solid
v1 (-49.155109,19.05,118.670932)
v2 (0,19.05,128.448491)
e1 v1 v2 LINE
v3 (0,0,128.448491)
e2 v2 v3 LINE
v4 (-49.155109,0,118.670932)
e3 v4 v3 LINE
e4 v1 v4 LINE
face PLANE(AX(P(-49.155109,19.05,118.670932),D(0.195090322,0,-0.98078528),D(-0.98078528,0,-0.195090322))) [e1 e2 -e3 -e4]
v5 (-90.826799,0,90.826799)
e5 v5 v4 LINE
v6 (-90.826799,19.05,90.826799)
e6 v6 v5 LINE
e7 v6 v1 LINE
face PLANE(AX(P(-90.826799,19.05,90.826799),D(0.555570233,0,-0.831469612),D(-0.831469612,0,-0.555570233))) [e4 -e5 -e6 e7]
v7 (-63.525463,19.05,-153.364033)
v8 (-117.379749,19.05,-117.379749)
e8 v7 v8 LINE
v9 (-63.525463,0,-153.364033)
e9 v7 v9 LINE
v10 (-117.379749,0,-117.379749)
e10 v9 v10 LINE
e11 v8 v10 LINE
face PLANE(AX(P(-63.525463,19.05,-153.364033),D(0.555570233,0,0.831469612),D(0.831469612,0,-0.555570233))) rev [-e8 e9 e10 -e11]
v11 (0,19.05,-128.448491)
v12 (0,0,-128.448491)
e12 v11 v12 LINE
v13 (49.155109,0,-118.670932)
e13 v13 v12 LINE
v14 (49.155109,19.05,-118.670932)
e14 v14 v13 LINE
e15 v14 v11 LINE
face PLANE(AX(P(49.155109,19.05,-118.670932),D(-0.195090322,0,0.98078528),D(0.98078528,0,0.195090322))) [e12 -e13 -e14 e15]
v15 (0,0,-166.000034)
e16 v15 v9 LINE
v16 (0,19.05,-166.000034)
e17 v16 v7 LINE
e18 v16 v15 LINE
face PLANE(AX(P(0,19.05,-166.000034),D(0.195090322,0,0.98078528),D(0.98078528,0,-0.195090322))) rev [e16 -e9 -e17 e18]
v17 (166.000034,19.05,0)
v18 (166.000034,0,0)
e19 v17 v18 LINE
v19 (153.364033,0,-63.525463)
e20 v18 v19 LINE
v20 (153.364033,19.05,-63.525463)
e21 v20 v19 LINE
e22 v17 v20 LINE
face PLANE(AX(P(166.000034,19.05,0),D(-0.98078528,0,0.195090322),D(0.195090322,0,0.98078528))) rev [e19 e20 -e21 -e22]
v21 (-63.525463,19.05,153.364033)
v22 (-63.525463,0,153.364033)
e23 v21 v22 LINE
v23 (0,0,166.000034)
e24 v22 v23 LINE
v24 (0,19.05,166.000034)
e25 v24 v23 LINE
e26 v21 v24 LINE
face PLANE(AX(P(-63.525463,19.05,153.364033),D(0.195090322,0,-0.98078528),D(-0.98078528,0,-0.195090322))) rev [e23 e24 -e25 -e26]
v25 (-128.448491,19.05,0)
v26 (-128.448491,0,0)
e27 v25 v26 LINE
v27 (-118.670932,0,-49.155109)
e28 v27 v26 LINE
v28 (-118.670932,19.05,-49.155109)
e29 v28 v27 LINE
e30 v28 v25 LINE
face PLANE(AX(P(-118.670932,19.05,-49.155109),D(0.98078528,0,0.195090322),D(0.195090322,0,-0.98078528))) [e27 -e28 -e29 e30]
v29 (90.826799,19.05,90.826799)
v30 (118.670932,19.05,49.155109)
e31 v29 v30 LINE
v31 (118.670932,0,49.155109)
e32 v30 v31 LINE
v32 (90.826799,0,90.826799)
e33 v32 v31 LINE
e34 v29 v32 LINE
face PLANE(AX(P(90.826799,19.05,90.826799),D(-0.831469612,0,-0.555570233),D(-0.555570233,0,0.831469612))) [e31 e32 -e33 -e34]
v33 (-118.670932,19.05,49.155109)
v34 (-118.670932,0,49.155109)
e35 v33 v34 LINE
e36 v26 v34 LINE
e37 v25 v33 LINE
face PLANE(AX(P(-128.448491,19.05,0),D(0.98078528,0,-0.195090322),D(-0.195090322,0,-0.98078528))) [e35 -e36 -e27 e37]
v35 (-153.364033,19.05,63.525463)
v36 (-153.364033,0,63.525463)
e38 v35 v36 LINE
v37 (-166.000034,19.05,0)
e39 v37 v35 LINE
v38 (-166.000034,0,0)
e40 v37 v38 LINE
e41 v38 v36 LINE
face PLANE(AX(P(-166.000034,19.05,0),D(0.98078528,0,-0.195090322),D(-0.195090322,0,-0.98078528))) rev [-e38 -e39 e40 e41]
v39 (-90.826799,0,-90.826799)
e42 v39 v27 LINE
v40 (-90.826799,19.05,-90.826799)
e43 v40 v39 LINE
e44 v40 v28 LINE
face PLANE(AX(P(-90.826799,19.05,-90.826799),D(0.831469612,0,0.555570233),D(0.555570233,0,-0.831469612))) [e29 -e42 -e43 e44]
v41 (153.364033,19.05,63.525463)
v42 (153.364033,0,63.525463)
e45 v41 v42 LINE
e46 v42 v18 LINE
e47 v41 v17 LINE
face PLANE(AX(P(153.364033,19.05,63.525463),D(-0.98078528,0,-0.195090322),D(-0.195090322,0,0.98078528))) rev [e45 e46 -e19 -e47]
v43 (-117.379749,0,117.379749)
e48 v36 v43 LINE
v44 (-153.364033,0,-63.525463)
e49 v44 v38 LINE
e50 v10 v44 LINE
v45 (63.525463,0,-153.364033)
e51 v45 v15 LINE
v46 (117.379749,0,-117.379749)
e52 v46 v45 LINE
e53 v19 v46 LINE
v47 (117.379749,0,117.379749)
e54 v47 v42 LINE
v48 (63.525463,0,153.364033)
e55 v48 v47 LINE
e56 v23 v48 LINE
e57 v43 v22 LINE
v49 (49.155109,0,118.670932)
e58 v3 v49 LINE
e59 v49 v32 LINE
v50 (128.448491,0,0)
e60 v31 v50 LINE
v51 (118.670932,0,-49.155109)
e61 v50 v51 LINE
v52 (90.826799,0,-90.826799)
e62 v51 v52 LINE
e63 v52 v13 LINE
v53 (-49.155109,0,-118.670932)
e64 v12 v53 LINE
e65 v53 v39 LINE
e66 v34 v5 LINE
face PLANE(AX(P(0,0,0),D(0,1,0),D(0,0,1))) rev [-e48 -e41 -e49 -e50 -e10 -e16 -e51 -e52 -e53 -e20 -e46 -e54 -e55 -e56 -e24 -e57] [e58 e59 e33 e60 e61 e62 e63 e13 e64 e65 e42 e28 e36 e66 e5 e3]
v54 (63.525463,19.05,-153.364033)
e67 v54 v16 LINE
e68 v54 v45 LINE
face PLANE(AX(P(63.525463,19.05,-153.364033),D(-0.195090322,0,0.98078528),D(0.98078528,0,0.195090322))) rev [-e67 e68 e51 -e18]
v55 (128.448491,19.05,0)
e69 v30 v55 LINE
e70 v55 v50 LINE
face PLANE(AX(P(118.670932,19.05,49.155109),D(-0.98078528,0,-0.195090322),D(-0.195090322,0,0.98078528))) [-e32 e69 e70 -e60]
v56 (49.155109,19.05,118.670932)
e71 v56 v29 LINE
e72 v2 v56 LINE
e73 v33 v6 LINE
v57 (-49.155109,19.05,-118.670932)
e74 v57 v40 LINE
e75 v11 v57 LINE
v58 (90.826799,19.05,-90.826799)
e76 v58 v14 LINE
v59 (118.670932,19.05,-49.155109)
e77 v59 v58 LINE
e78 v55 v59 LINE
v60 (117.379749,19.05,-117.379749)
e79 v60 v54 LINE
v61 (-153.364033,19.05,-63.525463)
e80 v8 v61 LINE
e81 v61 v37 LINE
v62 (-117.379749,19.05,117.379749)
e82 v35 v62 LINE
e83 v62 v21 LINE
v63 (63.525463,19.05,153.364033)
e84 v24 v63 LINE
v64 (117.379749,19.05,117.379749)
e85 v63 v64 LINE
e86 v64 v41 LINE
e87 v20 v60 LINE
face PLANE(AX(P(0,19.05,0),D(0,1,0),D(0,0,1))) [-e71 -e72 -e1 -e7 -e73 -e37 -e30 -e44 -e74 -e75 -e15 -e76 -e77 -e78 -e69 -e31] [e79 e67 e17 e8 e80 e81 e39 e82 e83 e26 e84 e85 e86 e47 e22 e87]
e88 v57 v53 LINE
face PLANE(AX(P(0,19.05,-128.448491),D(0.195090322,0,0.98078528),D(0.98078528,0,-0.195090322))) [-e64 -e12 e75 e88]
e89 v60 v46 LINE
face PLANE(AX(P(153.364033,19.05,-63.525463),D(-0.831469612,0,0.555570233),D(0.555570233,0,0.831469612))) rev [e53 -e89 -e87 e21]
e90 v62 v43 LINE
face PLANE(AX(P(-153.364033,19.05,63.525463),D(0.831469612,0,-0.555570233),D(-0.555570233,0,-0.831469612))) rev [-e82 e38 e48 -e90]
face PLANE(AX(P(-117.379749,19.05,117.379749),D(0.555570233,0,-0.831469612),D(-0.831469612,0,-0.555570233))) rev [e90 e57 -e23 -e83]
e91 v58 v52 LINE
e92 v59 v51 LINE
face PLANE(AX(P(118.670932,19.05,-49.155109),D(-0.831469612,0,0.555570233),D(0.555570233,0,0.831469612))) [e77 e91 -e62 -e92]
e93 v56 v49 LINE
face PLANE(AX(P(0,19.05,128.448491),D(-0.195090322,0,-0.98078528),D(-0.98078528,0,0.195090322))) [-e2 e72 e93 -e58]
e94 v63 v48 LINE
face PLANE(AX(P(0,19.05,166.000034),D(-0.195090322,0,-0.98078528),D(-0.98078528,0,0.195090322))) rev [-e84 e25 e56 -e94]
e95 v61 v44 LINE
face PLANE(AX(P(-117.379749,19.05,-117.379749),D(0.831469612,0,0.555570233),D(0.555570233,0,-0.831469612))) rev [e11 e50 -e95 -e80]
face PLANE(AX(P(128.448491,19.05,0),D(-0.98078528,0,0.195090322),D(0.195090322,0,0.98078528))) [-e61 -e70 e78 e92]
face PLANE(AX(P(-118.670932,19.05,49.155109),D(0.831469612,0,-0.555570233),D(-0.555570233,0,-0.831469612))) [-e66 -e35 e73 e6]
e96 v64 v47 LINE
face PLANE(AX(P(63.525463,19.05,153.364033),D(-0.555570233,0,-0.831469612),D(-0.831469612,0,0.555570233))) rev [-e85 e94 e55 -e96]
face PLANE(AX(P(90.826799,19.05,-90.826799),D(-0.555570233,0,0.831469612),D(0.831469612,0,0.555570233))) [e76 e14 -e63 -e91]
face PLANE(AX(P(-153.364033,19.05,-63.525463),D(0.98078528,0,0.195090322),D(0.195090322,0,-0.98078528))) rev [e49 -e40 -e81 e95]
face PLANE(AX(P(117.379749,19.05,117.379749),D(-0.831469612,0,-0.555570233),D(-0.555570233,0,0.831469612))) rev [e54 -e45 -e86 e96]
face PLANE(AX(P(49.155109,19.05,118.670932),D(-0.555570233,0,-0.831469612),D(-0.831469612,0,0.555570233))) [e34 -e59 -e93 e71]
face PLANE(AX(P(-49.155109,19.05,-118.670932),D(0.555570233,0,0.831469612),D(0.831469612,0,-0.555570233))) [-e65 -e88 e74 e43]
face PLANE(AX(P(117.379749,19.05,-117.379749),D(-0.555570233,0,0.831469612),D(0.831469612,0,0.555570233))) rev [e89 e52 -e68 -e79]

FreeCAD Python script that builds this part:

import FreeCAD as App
import Part
import Sketcher

V = App.Vector
Q = App.Units.Quantity


def add_polygon(sketch, points):
    """Adds a closed chain of lines whose ends are joined by coincident constraints."""
    first, n = sketch.GeometryCount, len(points)
    for a, b in zip(points, points[1:] + points[:1]):
        sketch.addGeometry(Part.LineSegment(App.Vector(*a, 0), App.Vector(*b, 0)), False)
    for i in range(n):
        sketch.addConstraint(Sketcher.Constraint("Coincident", first + i, 2, first + (i + 1) % n, 1))

doc = App.newDocument("Part")
params = doc.addObject("Spreadsheet::Sheet", "Params")
for row, (alias, value) in enumerate([
    ("sketch1_length", "2.55 in"),
    ("pad1_length", "0.75 in"),
], start=1):
    params.set(f"A{row}", alias)
    params.set(f"B{row}", "=" + value)
    params.setAlias(f"B{row}", alias)

body = doc.addObject("PartDesign::Body", "Body")

sketch1 = body.newObject("Sketcher::SketchObject", "Sketch")
sketch1.AttachmentSupport = (doc.getObject("XZ_Plane"), [""])
sketch1.MapMode = "FlatFace"
add_polygon(sketch1, [(166.000034, 0), (153.364033, -63.525463), (117.379749, -117.379749), (63.525463, -153.364033), (0, -166.000034), (-63.525463, -153.364033), (-117.379749, -117.379749), (-153.364033, -63.525463), (-166.000034, 0), (-153.364033, 63.525463), (-117.379749, 117.379749), (-63.525463, 153.364033), (0, 166.000034), (63.525463, 153.364033), (117.379749, 117.379749), (153.364033, 63.525463)])
add_polygon(sketch1, [(118.670932, -49.155109), (128.448491, 0), (118.670932, 49.155109), (90.826799, 90.826799), (49.155109, 118.670932), (0, 128.448491), (-49.155109, 118.670932), (-90.826799, 90.826799), (-118.670932, 49.155109), (-128.448491, 0), (-118.670932, -49.155109), (-90.826799, -90.826799), (-49.155109, -118.670932), (0, -128.448491), (49.155109, -118.670932), (90.826799, -90.826799)])
sketch1.addConstraint([
    Sketcher.Constraint("Symmetric", 0, 2, 8, 2, -1, 1),
    Sketcher.Constraint("Symmetric", 1, 2, 9, 2, -1, 1),
    Sketcher.Constraint("Symmetric", 2, 2, 10, 2, -1, 1),
    Sketcher.Constraint("Symmetric", 3, 2, 11, 2, -1, 1),
    Sketcher.Constraint("Symmetric", 4, 2, 12, 2, -1, 1),
    Sketcher.Constraint("Symmetric", 5, 2, 13, 2, -1, 1),
    Sketcher.Constraint("Symmetric", 6, 2, 14, 2, -1, 1),
    Sketcher.Constraint("Symmetric", 7, 2, 15, 2, -1, 1),
    Sketcher.Constraint("Symmetric", 16, 2, 24, 2, -1, 1),
    Sketcher.Constraint("Symmetric", 17, 2, 25, 2, -1, 1),
    Sketcher.Constraint("Symmetric", 18, 2, 26, 2, -1, 1),
    Sketcher.Constraint("Symmetric", 19, 2, 27, 2, -1, 1),
    Sketcher.Constraint("Symmetric", 20, 2, 28, 2, -1, 1),
    Sketcher.Constraint("Symmetric", 21, 2, 29, 2, -1, 1),
    Sketcher.Constraint("Symmetric", 22, 2, 30, 2, -1, 1),
    Sketcher.Constraint("Symmetric", 23, 2, 31, 2, -1, 1),
    Sketcher.Constraint("Symmetric", 2, 2, 4, 2, -2),
    Sketcher.Constraint("Symmetric", 1, 2, 5, 2, -2),
    Sketcher.Constraint("Symmetric", 0, 2, 6, 2, -2),
    Sketcher.Constraint("Symmetric", 19, 2, 21, 2, -2),
    Sketcher.Constraint("Symmetric", 18, 2, 22, 2, -2),
    Sketcher.Constraint("Symmetric", 17, 2, 23, 2, -2),
    Sketcher.Constraint("PointOnObject", 3, 2, -2),
    Sketcher.Constraint("PointOnObject", 7, 2, -1),
    Sketcher.Constraint("PointOnObject", 16, 2, -1),
    Sketcher.Constraint("PointOnObject", 20, 2, -2),
    Sketcher.Constraint("Perpendicular", 0, 4),
    Sketcher.Constraint("Perpendicular", 1, 5),
    Sketcher.Constraint("Perpendicular", 12, 16),
    Sketcher.Constraint("Parallel", 14, 18),
    Sketcher.Constraint("Parallel", 13, 19),
    Sketcher.Constraint("Perpendicular", 16, 20),
    Sketcher.Constraint("Equal", 0, 1),
    Sketcher.Constraint("Equal", 1, 2),
    Sketcher.Constraint("Equal", 2, 3),
    Sketcher.Constraint("Equal", 17, 18),
    Sketcher.Constraint("Equal", 18, 19),
    Sketcher.Constraint("Equal", 19, 20),
    Sketcher.Constraint("Distance", 0, Q("2.55 in")),
    Sketcher.Constraint("Angle", 0, Q("-101.25 deg")),
    Sketcher.Constraint("Angle", 1, Q("-123.75 deg")),
    Sketcher.Constraint("DistanceX", -1, 1, 18, 2, Q("90.826799 mm")),
])
sketch1.setExpression("Constraints[70]", "Params.sketch1_length")
pad1 = body.newObject("PartDesign::Pad", "Pad")
pad1.Profile = sketch1
pad1.setExpression("Length", "Params.pad1_length")
pad1.Reversed = True

doc.recompute()
